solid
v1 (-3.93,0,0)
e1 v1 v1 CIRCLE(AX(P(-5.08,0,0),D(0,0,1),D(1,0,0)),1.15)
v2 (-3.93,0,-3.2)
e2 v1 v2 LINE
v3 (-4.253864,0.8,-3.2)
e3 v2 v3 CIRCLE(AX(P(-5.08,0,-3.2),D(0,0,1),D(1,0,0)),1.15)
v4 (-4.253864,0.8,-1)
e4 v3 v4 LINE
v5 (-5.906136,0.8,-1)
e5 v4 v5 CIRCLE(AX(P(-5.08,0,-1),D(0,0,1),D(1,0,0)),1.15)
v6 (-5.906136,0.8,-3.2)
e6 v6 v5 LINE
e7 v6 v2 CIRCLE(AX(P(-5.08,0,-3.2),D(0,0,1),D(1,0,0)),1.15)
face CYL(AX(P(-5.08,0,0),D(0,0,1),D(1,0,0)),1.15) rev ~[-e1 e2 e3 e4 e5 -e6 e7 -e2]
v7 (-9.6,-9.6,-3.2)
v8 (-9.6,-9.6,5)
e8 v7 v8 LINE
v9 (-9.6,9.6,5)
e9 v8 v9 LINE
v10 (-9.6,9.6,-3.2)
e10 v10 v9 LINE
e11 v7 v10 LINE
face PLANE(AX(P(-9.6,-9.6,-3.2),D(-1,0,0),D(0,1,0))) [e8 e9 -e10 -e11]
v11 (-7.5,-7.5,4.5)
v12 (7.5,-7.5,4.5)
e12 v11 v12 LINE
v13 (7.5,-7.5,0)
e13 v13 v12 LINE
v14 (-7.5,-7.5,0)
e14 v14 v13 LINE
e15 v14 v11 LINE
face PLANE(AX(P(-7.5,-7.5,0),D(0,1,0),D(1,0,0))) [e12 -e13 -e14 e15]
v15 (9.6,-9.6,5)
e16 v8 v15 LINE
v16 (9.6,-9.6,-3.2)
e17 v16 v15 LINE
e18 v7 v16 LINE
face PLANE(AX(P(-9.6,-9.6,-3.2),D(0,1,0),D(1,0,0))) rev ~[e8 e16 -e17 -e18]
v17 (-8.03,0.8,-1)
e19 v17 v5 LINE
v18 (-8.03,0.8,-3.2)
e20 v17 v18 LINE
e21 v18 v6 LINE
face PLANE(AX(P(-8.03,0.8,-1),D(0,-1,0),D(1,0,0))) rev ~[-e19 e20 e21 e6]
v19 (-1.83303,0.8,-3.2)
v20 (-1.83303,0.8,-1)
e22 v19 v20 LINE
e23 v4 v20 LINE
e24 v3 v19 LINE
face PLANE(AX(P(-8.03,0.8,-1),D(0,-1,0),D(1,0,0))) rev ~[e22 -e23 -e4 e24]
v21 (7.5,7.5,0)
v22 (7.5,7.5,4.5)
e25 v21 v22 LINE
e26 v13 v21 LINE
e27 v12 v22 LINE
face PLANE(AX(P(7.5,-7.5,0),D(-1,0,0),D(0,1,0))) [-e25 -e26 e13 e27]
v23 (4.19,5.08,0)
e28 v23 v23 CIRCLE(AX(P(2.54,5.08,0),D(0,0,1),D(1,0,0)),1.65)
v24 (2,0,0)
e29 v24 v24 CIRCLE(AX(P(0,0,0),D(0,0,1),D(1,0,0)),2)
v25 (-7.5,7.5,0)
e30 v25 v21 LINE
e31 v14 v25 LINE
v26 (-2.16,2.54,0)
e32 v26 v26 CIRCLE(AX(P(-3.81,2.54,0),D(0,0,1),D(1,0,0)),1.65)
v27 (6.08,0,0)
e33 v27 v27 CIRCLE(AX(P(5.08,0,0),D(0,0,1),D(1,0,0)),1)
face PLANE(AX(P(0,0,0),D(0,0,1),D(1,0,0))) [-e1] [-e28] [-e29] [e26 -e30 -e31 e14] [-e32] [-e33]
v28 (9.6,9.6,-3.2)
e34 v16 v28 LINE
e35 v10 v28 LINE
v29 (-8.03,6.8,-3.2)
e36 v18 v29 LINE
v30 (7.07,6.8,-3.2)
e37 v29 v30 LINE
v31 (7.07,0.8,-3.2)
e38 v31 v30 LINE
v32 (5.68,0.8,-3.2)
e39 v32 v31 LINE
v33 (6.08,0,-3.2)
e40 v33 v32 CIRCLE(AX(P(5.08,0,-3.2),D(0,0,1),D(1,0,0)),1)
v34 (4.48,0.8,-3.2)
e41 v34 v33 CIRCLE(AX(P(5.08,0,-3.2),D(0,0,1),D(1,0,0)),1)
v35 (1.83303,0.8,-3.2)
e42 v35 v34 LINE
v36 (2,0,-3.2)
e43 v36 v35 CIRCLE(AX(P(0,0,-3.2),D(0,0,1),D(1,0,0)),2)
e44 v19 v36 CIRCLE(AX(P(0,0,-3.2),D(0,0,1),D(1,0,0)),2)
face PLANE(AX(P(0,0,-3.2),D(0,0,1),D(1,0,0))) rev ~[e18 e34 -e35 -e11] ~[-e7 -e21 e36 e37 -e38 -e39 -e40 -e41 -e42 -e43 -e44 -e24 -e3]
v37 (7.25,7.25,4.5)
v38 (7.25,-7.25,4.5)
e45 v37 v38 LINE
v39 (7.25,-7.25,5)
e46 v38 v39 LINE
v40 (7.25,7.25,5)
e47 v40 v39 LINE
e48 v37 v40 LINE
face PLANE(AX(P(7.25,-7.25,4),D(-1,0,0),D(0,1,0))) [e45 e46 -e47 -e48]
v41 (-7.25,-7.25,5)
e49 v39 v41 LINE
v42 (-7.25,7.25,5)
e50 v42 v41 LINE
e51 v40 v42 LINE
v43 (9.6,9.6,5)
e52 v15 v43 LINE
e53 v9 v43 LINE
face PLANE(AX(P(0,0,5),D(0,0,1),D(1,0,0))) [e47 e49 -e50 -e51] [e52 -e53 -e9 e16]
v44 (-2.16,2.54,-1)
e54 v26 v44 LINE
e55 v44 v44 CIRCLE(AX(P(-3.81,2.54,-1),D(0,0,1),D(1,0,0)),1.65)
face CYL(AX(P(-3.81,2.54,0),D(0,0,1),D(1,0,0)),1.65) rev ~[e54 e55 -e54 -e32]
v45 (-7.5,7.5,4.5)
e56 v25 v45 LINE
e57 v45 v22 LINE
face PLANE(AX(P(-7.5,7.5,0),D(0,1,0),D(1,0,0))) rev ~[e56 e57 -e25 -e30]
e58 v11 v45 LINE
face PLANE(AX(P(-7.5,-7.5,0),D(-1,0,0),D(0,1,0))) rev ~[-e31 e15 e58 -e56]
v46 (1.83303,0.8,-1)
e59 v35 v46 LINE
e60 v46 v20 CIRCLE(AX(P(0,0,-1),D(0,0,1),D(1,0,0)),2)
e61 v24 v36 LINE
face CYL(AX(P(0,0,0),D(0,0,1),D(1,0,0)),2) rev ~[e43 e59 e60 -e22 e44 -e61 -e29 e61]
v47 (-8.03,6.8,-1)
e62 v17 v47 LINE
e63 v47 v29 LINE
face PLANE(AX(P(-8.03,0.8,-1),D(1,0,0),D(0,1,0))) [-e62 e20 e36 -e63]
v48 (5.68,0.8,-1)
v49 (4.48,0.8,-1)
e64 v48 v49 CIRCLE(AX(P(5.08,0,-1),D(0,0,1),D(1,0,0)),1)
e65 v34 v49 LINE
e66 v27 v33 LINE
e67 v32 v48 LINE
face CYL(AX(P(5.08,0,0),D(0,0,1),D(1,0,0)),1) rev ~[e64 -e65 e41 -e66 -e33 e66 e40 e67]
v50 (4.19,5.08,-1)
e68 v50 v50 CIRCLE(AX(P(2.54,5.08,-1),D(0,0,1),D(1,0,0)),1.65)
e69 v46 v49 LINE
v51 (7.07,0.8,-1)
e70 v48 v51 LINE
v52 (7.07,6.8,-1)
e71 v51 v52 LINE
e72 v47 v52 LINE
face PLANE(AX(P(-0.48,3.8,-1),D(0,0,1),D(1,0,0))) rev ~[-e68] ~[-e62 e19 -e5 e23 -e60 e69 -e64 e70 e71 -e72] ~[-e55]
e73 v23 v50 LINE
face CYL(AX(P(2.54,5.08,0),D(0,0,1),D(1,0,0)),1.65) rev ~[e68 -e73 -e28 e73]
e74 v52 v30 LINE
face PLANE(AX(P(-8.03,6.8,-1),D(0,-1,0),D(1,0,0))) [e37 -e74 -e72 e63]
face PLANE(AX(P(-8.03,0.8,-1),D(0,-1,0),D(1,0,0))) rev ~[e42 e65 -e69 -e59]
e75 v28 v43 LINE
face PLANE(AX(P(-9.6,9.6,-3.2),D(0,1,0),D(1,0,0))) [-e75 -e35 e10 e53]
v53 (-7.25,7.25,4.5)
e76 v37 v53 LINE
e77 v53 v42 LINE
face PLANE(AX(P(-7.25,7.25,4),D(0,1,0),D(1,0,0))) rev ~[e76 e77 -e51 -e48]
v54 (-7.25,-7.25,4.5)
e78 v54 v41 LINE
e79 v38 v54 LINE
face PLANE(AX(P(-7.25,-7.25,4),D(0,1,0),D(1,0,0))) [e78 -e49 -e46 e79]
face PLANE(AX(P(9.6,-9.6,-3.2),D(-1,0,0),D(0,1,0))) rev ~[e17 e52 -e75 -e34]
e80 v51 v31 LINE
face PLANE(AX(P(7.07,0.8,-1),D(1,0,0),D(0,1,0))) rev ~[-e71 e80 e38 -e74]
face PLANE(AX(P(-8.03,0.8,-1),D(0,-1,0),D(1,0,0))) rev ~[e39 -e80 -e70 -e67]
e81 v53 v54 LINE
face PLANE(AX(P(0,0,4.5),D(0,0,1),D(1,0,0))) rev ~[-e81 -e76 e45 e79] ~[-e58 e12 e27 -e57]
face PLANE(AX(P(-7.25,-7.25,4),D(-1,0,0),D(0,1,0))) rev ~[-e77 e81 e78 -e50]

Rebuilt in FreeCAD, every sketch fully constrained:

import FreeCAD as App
import Part
import Sketcher

V = App.Vector


def add_polygon(sketch, points):
    """Adds a closed chain of lines whose ends are joined by coincident constraints."""
    first, n = sketch.GeometryCount, len(points)
    for a, b in zip(points, points[1:] + points[:1]):
        sketch.addGeometry(Part.LineSegment(App.Vector(*a, 0), App.Vector(*b, 0)), False)
    for i in range(n):
        sketch.addConstraint(Sketcher.Constraint("Coincident", first + i, 2, first + (i + 1) % n, 1))

doc = App.newDocument("Part")
body = doc.addObject("PartDesign::Body", "Body")

sketch1 = doc.addObject("Sketcher::SketchObject", "Sketch")
body.addObject(sketch1)
sketch1.AttachmentSupport = (doc.XY_Plane, [""])
sketch1.MapMode = "FlatFace"
sketch1.addGeometry(Part.Circle(V(0, 0, 0), V(0, 0, 1), 2), False)
sketch1.addConstraint([
    Sketcher.Constraint("Coincident", 0, 3, -1, 1),
    Sketcher.Constraint("Diameter", 0, 4.0),
])
pad1 = doc.addObject("PartDesign::Pad", "Pad")
body.addObject(pad1)
pad1.Profile = sketch1
pad1.Length = 3.2
pad1.Reversed = True
body2 = doc.addObject("PartDesign::Body", "Body001")

sketch2 = doc.addObject("Sketcher::SketchObject", "Sketch001")
body2.addObject(sketch2)
sketch2.AttachmentSupport = (doc.getObject("XY_Plane001"), [""])
sketch2.MapMode = "FlatFace"
sketch2.addGeometry(Part.Circle(V(-5.08, 0, 0), V(0, 0, 1), 1.15), False)
sketch2.addConstraint([
    Sketcher.Constraint("PointOnObject", 0, 3, -1),
    Sketcher.Constraint("Diameter", 0, 2.3),
    Sketcher.Constraint("DistanceX", 0, 3, -1, 1, 5.08),
])
pad2 = doc.addObject("PartDesign::Pad", "Pad001")
body2.addObject(pad2)
pad2.Profile = sketch2
pad2.Length = 3.2
pad2.Reversed = True
body3 = doc.addObject("PartDesign::Body", "Body002")

sketch3 = doc.addObject("Sketcher::SketchObject", "Sketch002")
body3.addObject(sketch3)
sketch3.AttachmentSupport = (doc.getObject("XY_Plane002"), [""])
sketch3.MapMode = "FlatFace"
sketch3.addGeometry(Part.Circle(V(5.08, 0, 0), V(0, 0, 1), 1), False)
sketch3.addConstraint([
    Sketcher.Constraint("PointOnObject", 0, 3, -1),
    Sketcher.Constraint("Diameter", 0, 2.0),
    Sketcher.Constraint("DistanceX", -1, 1, 0, 3, 5.08),
])
pad3 = doc.addObject("PartDesign::Pad", "Pad002")
body3.addObject(pad3)
pad3.Profile = sketch3
pad3.Length = 3.2
pad3.Reversed = True
body4 = doc.addObject("PartDesign::Body", "Body003")

sketch4 = doc.addObject("Sketcher::SketchObject", "Sketch003")
body4.addObject(sketch4)
sketch4.AttachmentSupport = (doc.getObject("XY_Plane003"), [""])
sketch4.MapMode = "FlatFace"
sketch4.addGeometry(Part.Circle(V(2.54, 5.08, 0), V(0, 0, 1), 1.65), False)
sketch4.addConstraint([
    Sketcher.Constraint("Diameter", 0, 3.3),
    Sketcher.Constraint("DistanceX", -1, 1, 0, 3, 2.54),
    Sketcher.Constraint("DistanceY", -1, 1, 0, 3, 5.08),
])
pad4 = doc.addObject("PartDesign::Pad", "Pad003")
body4.addObject(pad4)
pad4.Profile = sketch4
pad4.Length = 1
pad4.Reversed = True
body5 = doc.addObject("PartDesign::Body", "Body004")

sketch5 = doc.addObject("Sketcher::SketchObject", "Sketch004")
body5.addObject(sketch5)
sketch5.AttachmentSupport = (doc.getObject("XY_Plane004"), [""])
sketch5.MapMode = "FlatFace"
sketch5.addGeometry(Part.Circle(V(-3.81, 2.54, 0), V(0, 0, 1), 1.65), False)
sketch5.addConstraint([
    Sketcher.Constraint("Diameter", 0, 3.3),
    Sketcher.Constraint("DistanceX", 0, 3, -1, 1, 3.81),
    Sketcher.Constraint("DistanceY", -1, 1, 0, 3, 2.54),
])
pad5 = doc.addObject("PartDesign::Pad", "Pad004")
body5.addObject(pad5)
pad5.Profile = sketch5
pad5.Length = 1
pad5.Reversed = True
body6 = doc.addObject("PartDesign::Body", "Body005")

sketch6 = doc.addObject("Sketcher::SketchObject", "Sketch005")
body6.addObject(sketch6)
sketch6.AttachmentSupport = (doc.getObject("XY_Plane005"), [""])
sketch6.MapMode = "FlatFace"
sketch6.AttachmentOffset = App.Placement(V(0, 0, -1), App.Rotation())
add_polygon(sketch6, [(-8.03, 6.8), (-8.03, 0.8), (7.07, 0.8), (7.07, 6.8)])
sketch6.addConstraint([
    Sketcher.Constraint("Vertical", 0),
    Sketcher.Constraint("Horizontal", 1),
    Sketcher.Constraint("Vertical", 2),
    Sketcher.Constraint("Horizontal", 3),
    Sketcher.Constraint("DistanceY", 0, 2, 0, 1, 6.0),
    Sketcher.Constraint("DistanceX", 1, 1, 1, 2, 15.1),
    Sketcher.Constraint("DistanceY", -1, 1, 0, 2, 0.8),
    Sketcher.Constraint("DistanceX", 0, 2, -1, 1, 8.03),
])
pad6 = doc.addObject("PartDesign::Pad", "Pad005")
body6.addObject(pad6)
pad6.Profile = sketch6
pad6.Length = 2.2
pad6.Reversed = True
body7 = doc.addObject("PartDesign::Body", "Body006")

sketch7 = doc.addObject("Sketcher::SketchObject", "Sketch006")
body7.addObject(sketch7)
sketch7.AttachmentSupport = (doc.getObject("XY_Plane006"), [""])
sketch7.MapMode = "FlatFace"
sketch7.AttachmentOffset = App.Placement(V(0, 0, 4), App.Rotation())
add_polygon(sketch7, [(-7.25, 7.25), (-7.25, -7.25), (7.25, -7.25), (7.25, 7.25)])
sketch7.addConstraint([
    Sketcher.Constraint("Vertical", 0),
    Sketcher.Constraint("Horizontal", 1),
    Sketcher.Constraint("Vertical", 2),
    Sketcher.Constraint("Horizontal", 3),
    Sketcher.Constraint("Symmetric", 0, 2, 2, 2, -1, 1),
    Sketcher.Constraint("Equal", 3, 0),
    Sketcher.Constraint("DistanceX", 1, 1, 1, 2, 14.5),
])
pad7 = doc.addObject("PartDesign::Pad", "Pad006")
body7.addObject(pad7)
pad7.Profile = sketch7
pad7.Length = 1.1
body8 = doc.addObject("PartDesign::Body", "Body007")

sketch8 = doc.addObject("Sketcher::SketchObject", "Sketch007")
body8.addObject(sketch8)
sketch8.AttachmentSupport = (doc.getObject("XY_Plane007"), [""])
sketch8.MapMode = "FlatFace"
add_polygon(sketch8, [(-7.5, 7.5), (-7.5, -7.5), (7.5, -7.5), (7.5, 7.5)])
sketch8.addConstraint([
    Sketcher.Constraint("Vertical", 0),
    Sketcher.Constraint("Horizontal", 1),
    Sketcher.Constraint("Vertical", 2),
    Sketcher.Constraint("Horizontal", 3),
    Sketcher.Constraint("Symmetric", 0, 2, 2, 2, -1, 1),
    Sketcher.Constraint("Equal", 3, 0),
    Sketcher.Constraint("DistanceX", 1, 1, 1, 2, 15.0),
])
pad8 = doc.addObject("PartDesign::Pad", "Pad007")
body8.addObject(pad8)
pad8.Profile = sketch8
pad8.Length = 4.5
doc.recompute()

boolean = doc.addObject("PartDesign::Boolean", "Boolean")
body8.addObject(boolean)
boolean.Type = "Fuse"
boolean.addObjects([body])
doc.recompute()

boolean2 = doc.addObject("PartDesign::Boolean", "Boolean001")
body8.addObject(boolean2)
boolean2.Type = "Fuse"
boolean2.addObjects([body2])
doc.recompute()

boolean3 = doc.addObject("PartDesign::Boolean", "Boolean002")
body8.addObject(boolean3)
boolean3.Type = "Fuse"
boolean3.addObjects([body3])
doc.recompute()

boolean4 = doc.addObject("PartDesign::Boolean", "Boolean003")
body8.addObject(boolean4)
boolean4.Type = "Fuse"
boolean4.addObjects([body4])
doc.recompute()

boolean5 = doc.addObject("PartDesign::Boolean", "Boolean004")
body8.addObject(boolean5)
boolean5.Type = "Fuse"
boolean5.addObjects([body5])
doc.recompute()

boolean6 = doc.addObject("PartDesign::Boolean", "Boolean005")
body8.addObject(boolean6)
boolean6.Type = "Fuse"
boolean6.addObjects([body6])
doc.recompute()

boolean7 = doc.addObject("PartDesign::Boolean", "Boolean006")
body8.addObject(boolean7)
boolean7.Type = "Fuse"
boolean7.addObjects([body7])
body9 = doc.addObject("PartDesign::Body", "Body008")

sketch9 = doc.addObject("Sketcher::SketchObject", "Sketch008")
body9.addObject(sketch9)
sketch9.AttachmentSupport = (doc.getObject("XY_Plane008"), [""])
sketch9.MapMode = "FlatFace"
sketch9.AttachmentOffset = App.Placement(V(0, 0, -3.2), App.Rotation())
add_polygon(sketch9, [(-9.6, 9.6), (-9.6, -9.6), (9.6, -9.6), (9.6, 9.6)])
sketch9.addConstraint([
    Sketcher.Constraint("Vertical", 0),
    Sketcher.Constraint("Horizontal", 1),
    Sketcher.Constraint("Vertical", 2),
    Sketcher.Constraint("Horizontal", 3),
    Sketcher.Constraint("Symmetric", 0, 2, 2, 2, -1, 1),
    Sketcher.Constraint("Equal", 3, 0),
    Sketcher.Constraint("DistanceX", 1, 1, 1, 2, 19.2),
])
pad9 = doc.addObject("PartDesign::Pad", "Pad008")
body9.addObject(pad9)
pad9.Profile = sketch9
pad9.Length = 8.2
doc.recompute()

boolean8 = doc.addObject("PartDesign::Boolean", "Boolean007")
body9.addObject(boolean8)
boolean8.Type = "Cut"
boolean8.addObjects([body8])

doc.recompute()
